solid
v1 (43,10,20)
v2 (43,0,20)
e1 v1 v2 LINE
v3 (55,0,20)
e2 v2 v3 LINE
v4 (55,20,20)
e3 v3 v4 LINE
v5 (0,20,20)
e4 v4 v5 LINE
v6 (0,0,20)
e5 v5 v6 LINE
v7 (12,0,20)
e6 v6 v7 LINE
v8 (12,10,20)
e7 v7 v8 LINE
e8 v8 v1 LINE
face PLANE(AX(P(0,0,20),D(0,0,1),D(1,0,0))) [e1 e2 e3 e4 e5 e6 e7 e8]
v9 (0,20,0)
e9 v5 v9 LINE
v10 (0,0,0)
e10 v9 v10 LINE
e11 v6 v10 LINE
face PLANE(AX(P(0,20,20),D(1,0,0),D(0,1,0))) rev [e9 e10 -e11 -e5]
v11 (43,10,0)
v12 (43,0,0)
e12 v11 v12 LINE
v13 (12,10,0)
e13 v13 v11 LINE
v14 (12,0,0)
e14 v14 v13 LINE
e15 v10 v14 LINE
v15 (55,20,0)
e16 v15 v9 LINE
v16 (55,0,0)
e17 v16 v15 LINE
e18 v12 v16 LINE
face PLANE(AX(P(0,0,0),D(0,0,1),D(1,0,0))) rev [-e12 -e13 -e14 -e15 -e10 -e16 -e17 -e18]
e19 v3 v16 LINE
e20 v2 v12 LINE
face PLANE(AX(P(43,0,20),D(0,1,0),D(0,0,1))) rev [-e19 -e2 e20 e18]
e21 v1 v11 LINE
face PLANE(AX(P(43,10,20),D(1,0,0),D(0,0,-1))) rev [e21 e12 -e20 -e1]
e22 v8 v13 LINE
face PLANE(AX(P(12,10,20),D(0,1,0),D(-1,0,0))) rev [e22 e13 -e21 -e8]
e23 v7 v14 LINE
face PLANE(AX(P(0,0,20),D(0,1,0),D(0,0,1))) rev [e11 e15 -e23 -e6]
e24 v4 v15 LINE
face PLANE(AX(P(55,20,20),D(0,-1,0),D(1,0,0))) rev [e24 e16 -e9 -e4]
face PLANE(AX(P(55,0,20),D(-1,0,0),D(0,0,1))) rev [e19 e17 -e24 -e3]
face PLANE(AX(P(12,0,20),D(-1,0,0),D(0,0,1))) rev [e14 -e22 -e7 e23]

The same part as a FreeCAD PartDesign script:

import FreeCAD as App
import Part
import Sketcher
from FreeCAD import Vector


def add_polygon(sketch, points):
    """Adds a closed chain of lines whose ends are joined by coincident constraints."""
    first, n = sketch.GeometryCount, len(points)
    for a, b in zip(points, points[1:] + points[:1]):
        sketch.addGeometry(Part.LineSegment(App.Vector(*a, 0), App.Vector(*b, 0)), False)
    for i in range(n):
        sketch.addConstraint(Sketcher.Constraint("Coincident", first + i, 2, first + (i + 1) % n, 1))

doc = App.newDocument("Part")
params = doc.addObject("Spreadsheet::Sheet", "Params")
for row, (alias, value) in enumerate([
    ("sketch1_width", "12 mm"),
    ("sketch1_width2", "31 mm"),
    ("sketch1_height", "10 mm"),
    ("sketch1_height2", "20 mm"),
    ("pad1_length", "20 mm"),
], start=1):
    params.set(f"A{row}", alias)
    params.set(f"B{row}", "=" + value)
    params.setAlias(f"B{row}", alias)

body = doc.addObject("PartDesign::Body", "Body")

sketch1 = body.newObject("Sketcher::SketchObject", "Sketch")
sketch1.AttachmentSupport = (doc.getObject("XY_Plane"), [""])
sketch1.MapMode = "FlatFace"
add_polygon(sketch1, [(0, 0), (12, 0), (12, 10), (43, 10), (43, 0), (55, 0), (55, 20), (0, 20)])
sketch1.addConstraint([
    Sketcher.Constraint("Horizontal", 0),
    Sketcher.Constraint("Vertical", 1),
    Sketcher.Constraint("Horizontal", 2),
    Sketcher.Constraint("Vertical", 3),
    Sketcher.Constraint("Horizontal", 4),
    Sketcher.Constraint("Vertical", 5),
    Sketcher.Constraint("Horizontal", 6),
    Sketcher.Constraint("Vertical", 7),
    Sketcher.Constraint("Coincident", 7, 2, -1, 1),
    Sketcher.Constraint("PointOnObject", 3, 2, -1),
    Sketcher.Constraint("Equal", 0, 4),
    Sketcher.Constraint("DistanceX", 0, 1, 0, 2, 12.0),
    Sketcher.Constraint("DistanceX", 2, 1, 2, 2, 31.0),
    Sketcher.Constraint("DistanceY", 1, 1, 1, 2, 10.0),
    Sketcher.Constraint("DistanceY", 5, 1, 5, 2, 20.0),
])
sketch1.setExpression("Constraints[19]", "Params.sketch1_width")
sketch1.setExpression("Constraints[20]", "Params.sketch1_width2")
sketch1.setExpression("Constraints[21]", "Params.sketch1_height")
sketch1.setExpression("Constraints[22]", "Params.sketch1_height2")
pad1 = body.newObject("PartDesign::Pad", "Pad")
pad1.Profile = sketch1
pad1.setExpression("Length", "Params.pad1_length")

doc.recompute()
